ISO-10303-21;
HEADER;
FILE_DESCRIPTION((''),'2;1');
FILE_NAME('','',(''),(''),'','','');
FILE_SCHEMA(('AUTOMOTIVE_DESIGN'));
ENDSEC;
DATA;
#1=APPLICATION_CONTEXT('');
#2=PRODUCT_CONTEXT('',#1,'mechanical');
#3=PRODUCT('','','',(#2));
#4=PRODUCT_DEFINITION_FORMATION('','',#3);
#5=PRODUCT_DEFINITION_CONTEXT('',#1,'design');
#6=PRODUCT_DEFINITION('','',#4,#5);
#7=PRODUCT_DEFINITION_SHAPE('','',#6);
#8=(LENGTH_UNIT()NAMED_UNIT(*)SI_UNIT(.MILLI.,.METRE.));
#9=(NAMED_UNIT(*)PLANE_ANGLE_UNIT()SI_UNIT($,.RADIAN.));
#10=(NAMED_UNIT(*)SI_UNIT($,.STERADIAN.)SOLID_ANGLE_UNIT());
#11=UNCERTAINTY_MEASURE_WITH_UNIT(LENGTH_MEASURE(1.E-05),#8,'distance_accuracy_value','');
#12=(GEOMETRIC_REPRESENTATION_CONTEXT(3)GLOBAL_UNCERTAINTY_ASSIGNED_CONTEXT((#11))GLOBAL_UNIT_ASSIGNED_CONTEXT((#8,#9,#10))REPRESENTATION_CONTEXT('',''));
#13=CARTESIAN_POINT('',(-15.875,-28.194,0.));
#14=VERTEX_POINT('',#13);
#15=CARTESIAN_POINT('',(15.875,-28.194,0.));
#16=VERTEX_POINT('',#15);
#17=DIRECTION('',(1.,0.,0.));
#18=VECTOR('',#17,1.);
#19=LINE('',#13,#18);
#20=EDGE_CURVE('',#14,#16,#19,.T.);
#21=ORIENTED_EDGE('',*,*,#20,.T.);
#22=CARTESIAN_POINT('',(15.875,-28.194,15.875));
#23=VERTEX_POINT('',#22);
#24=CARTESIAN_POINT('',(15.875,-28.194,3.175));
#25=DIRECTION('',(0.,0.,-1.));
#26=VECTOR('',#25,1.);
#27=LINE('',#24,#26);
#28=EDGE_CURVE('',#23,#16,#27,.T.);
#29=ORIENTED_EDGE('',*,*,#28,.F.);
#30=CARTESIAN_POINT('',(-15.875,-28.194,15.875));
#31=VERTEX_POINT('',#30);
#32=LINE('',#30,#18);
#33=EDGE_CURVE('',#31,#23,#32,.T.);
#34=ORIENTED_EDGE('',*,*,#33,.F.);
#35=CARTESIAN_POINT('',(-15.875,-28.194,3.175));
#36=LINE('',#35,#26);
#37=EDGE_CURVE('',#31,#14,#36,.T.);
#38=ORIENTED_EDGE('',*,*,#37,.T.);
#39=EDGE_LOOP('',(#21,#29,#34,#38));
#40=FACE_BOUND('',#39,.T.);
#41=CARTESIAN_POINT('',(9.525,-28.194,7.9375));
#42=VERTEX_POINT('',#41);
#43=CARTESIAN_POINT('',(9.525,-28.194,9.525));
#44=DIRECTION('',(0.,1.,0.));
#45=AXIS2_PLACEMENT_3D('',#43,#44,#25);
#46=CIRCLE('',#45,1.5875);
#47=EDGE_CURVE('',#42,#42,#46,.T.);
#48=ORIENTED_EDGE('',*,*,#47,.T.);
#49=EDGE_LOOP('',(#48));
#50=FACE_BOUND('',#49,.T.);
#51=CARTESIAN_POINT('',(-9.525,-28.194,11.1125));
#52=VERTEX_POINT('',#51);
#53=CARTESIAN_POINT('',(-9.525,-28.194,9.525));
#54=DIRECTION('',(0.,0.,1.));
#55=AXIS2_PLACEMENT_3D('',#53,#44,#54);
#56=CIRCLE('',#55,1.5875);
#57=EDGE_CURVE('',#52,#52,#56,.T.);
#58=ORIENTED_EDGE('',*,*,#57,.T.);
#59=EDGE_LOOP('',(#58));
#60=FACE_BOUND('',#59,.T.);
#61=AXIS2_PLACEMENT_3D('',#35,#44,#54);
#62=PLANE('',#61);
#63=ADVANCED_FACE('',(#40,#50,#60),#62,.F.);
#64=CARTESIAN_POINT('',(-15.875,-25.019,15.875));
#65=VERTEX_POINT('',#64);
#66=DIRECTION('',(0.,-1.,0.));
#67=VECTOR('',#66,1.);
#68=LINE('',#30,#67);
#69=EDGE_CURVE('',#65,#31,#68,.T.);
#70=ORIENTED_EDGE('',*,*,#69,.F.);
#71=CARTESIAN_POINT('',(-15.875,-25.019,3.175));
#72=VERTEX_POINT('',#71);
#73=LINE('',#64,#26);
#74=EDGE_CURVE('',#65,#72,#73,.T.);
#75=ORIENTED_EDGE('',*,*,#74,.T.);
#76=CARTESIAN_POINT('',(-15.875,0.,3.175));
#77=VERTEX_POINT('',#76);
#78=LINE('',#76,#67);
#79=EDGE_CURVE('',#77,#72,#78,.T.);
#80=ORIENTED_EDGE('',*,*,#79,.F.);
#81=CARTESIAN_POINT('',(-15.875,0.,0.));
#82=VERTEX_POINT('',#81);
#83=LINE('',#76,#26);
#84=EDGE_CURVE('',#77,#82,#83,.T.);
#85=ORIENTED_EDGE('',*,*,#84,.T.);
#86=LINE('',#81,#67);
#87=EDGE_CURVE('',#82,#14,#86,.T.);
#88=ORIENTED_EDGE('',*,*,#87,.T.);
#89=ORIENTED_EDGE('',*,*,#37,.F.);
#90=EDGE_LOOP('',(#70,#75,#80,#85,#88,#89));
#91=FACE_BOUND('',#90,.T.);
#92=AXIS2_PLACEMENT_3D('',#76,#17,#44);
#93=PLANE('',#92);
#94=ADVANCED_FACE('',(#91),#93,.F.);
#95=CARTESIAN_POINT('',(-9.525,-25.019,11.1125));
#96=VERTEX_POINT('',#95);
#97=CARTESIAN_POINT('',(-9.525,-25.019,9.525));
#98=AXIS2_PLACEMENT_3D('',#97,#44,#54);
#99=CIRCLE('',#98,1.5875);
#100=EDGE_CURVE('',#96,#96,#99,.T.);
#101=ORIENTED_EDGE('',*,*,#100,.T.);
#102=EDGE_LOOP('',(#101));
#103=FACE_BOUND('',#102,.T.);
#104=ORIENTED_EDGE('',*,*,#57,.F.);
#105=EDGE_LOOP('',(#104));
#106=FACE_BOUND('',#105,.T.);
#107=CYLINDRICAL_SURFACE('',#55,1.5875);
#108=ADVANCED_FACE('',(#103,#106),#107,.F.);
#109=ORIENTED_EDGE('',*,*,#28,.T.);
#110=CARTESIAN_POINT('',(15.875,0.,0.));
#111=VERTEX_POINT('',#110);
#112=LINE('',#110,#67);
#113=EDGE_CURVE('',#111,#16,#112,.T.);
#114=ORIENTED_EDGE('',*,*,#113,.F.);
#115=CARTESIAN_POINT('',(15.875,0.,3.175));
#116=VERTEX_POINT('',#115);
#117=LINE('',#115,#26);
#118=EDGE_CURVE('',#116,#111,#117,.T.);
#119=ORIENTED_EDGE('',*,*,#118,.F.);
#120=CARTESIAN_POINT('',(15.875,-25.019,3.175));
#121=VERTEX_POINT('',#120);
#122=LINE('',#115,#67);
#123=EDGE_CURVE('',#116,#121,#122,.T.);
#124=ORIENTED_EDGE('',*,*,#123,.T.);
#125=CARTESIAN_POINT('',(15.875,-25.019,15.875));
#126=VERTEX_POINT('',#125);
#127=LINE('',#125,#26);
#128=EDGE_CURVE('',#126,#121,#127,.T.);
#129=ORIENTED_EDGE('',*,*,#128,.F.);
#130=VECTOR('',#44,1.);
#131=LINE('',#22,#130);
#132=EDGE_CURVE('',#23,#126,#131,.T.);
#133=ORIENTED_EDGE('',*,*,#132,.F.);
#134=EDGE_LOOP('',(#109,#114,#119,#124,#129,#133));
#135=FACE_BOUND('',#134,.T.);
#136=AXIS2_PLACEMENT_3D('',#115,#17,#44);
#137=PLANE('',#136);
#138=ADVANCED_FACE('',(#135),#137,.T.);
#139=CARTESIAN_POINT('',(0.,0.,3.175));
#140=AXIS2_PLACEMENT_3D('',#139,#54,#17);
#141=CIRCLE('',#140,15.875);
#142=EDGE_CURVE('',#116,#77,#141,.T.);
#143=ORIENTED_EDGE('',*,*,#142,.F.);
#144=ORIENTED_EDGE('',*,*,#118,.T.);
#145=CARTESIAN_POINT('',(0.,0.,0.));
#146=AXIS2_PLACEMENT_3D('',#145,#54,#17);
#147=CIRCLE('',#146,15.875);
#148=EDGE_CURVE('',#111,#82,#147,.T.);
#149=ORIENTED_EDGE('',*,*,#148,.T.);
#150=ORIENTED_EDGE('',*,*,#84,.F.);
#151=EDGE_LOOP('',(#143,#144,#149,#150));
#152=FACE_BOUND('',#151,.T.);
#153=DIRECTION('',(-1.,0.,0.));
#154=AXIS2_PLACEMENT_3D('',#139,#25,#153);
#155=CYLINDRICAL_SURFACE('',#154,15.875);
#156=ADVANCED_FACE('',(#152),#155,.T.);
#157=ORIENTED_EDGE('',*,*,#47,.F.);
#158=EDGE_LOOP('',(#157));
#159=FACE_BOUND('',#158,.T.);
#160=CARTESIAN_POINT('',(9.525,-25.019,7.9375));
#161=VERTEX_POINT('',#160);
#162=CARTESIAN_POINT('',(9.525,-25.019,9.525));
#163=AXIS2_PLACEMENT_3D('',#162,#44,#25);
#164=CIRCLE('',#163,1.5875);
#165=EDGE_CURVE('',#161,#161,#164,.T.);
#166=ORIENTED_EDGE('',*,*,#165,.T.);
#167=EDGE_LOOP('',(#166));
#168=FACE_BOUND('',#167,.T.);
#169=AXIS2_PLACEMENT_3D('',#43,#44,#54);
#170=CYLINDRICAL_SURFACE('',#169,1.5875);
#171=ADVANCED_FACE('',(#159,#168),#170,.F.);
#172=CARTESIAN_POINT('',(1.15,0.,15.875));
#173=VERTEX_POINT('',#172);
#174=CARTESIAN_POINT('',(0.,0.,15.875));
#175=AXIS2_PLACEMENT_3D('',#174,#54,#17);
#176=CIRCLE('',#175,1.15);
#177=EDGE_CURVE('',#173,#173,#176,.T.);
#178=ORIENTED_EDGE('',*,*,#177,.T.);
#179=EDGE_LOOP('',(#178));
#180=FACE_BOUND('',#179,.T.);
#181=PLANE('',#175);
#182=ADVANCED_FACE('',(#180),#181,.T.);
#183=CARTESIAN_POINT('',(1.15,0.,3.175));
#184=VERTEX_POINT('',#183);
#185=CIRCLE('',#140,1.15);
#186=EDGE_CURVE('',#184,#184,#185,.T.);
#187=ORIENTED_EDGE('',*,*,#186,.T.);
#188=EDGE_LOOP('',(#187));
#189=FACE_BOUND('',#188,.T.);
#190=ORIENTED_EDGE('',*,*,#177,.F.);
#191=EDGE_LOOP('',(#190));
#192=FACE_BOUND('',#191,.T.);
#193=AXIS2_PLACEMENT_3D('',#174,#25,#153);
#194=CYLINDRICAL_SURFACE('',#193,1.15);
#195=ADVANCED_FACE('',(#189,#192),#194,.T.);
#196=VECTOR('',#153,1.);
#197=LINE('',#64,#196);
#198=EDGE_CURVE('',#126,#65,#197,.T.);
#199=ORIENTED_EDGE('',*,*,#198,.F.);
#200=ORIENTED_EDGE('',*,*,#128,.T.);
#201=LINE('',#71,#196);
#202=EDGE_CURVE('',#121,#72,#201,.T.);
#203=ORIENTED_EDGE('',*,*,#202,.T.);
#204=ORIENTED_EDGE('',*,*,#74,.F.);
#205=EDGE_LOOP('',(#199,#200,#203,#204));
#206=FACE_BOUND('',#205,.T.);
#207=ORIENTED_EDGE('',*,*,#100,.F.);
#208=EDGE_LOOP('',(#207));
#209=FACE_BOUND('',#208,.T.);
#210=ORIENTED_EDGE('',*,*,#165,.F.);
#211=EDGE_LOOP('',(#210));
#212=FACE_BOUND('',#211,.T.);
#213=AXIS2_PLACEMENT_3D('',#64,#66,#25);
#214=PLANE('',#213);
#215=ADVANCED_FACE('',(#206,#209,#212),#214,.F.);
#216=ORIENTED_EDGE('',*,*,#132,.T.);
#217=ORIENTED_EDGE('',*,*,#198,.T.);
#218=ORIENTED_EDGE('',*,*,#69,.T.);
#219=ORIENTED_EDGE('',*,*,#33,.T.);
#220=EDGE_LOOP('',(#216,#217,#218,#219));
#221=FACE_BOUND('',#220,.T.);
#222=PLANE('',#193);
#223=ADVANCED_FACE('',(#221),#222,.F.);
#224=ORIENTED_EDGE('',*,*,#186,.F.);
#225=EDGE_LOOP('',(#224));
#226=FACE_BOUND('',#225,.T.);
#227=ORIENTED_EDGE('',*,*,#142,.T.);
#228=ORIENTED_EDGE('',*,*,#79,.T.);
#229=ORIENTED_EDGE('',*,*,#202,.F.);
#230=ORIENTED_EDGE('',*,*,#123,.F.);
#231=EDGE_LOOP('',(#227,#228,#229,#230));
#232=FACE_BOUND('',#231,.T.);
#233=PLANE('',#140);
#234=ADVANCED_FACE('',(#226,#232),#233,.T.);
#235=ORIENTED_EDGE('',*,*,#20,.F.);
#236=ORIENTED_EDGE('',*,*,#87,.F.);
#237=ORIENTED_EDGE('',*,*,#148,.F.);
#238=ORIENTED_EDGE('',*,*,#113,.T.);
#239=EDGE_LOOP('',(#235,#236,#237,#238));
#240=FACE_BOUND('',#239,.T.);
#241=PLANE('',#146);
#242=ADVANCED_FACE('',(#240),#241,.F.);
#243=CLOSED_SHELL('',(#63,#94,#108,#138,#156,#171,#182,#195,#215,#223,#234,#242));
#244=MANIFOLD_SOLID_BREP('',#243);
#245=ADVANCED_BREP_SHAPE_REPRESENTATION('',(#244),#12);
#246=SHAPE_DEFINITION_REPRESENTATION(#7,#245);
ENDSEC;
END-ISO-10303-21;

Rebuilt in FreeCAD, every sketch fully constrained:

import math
import FreeCAD as App
import Part
import Sketcher
from FreeCAD import Vector
Q = App.Units.Quantity


def add_polygon(sketch, points):
    """Adds a closed chain of lines whose ends are joined by coincident constraints."""
    first, n = sketch.GeometryCount, len(points)
    for a, b in zip(points, points[1:] + points[:1]):
        sketch.addGeometry(Part.LineSegment(App.Vector(*a, 0), App.Vector(*b, 0)), False)
    for i in range(n):
        sketch.addConstraint(Sketcher.Constraint("Coincident", first + i, 2, first + (i + 1) % n, 1))

doc = App.newDocument("Part")
body = doc.addObject("PartDesign::Body", "Body")

sketch1 = body.newObject("Sketcher::SketchObject", "Sketch")
sketch1.AttachmentSupport = (doc.getObject("XY_Plane"), [""])
sketch1.MapMode = "FlatFace"
sketch1.addGeometry(Part.ArcOfCircle(Part.Circle(Vector(0, 0, 0), Vector(0, 0, 1), 16), math.radians(0), math.radians(180)), False)
sketch1.addGeometry(Part.LineSegment(Vector(-16, 0, 0), Vector(-16, -28, 0)), False)
sketch1.addGeometry(Part.LineSegment(Vector(-16, -28, 0), Vector(16, -28, 0)), False)
sketch1.addGeometry(Part.LineSegment(Vector(16, -28, 0), Vector(16, 0, 0)), False)
sketch1.addConstraint(Sketcher.Constraint("Tangent", 0, 2, 1, 1))
sketch1.addConstraint(Sketcher.Constraint("Coincident", 1, 2, 2, 1))
sketch1.addConstraint(Sketcher.Constraint("Coincident", 2, 2, 3, 1))
sketch1.addConstraint(Sketcher.Constraint("Tangent", 3, 2, 0, 1))
sketch1.addConstraint(Sketcher.Constraint("Vertical", 1))
sketch1.addConstraint(Sketcher.Constraint("Horizontal", 2))
sketch1.addConstraint(Sketcher.Constraint("Vertical", 3))
sketch1.addConstraint(Sketcher.Constraint("Coincident", 0, 3, -1, 1))
sketch1.addConstraint(Sketcher.Constraint("Radius", 0, Q("0.625 in")))
sketch1.addConstraint(Sketcher.Constraint("DistanceY", 1, 2, 1, 1, Q("1.11 in")))
pad1 = body.newObject("PartDesign::Pad", "Pad")
pad1.Profile = sketch1
pad1.Length = Q("0.125 in")

sketch2 = body.newObject("Sketcher::SketchObject", "Sketch001")
sketch2.AttachmentSupport = (doc.getObject("XY_Plane"), [""])
sketch2.MapMode = "FlatFace"
sketch2.AttachmentOffset = App.Placement(Vector(0, 0, 0.125 * 25.4), App.Rotation())
add_polygon(sketch2, [(-15.9, -25), (-15.9, -28.2), (15.9, -28.2), (15.9, -25)])
sketch2.addConstraint(Sketcher.Constraint("Vertical", 0))
sketch2.addConstraint(Sketcher.Constraint("Horizontal", 1))
sketch2.addConstraint(Sketcher.Constraint("Vertical", 2))
sketch2.addConstraint(Sketcher.Constraint("Horizontal", 3))
sketch2.addConstraint(Sketcher.Constraint("DistanceX", 1, 1, 1, 2, Q("1.25 in")))
sketch2.addConstraint(Sketcher.Constraint("DistanceY", 0, 2, 0, 1, Q("0.125 in")))
sketch2.addConstraint(Sketcher.Constraint("DistanceY", 0, 2, -1, 1, Q("1.11 in")))
sketch2.addConstraint(Sketcher.Constraint("DistanceX", 0, 2, -1, 1, Q("0.625 in")))
pad2 = body.newObject("PartDesign::Pad", "Pad001")
pad2.Profile = sketch2
pad2.Length = Q("0.5 in")

sketch3 = body.newObject("Sketcher::SketchObject", "Sketch002")
sketch3.AttachmentSupport = (doc.getObject("XZ_Plane"), [""])
sketch3.MapMode = "FlatFace"
sketch3.AttachmentOffset = App.Placement(Vector(0, 0, 0.985 * 25.4), App.Rotation())
sketch3.addGeometry(Part.Circle(Vector(-9.5, 9.5, 0), Vector(0, 0, 1), 1.6), False)
sketch3.addGeometry(Part.Circle(Vector(9.5, 9.5, 0), Vector(0, 0, 1), 1.6), False)
sketch3.addConstraint(Sketcher.Constraint("Equal", 0, 1))
sketch3.addConstraint(Sketcher.Constraint("Symmetric", 0, 3, 1, 3, -2))
sketch3.addConstraint(Sketcher.Constraint("Diameter", 0, Q("0.125 in")))
sketch3.addConstraint(Sketcher.Constraint("DistanceX", 0, 3, 1, 3, Q("0.75 in")))
sketch3.addConstraint(Sketcher.Constraint("DistanceY", -1, 1, 0, 3, Q("0.375 in")))
pocket1 = body.newObject("PartDesign::Pocket", "Pocket")
pocket1.Profile = sketch3
pocket1.Type = "ThroughAll"
pocket1.Reversed = True

sketch4 = body.newObject("Sketcher::SketchObject", "Sketch003")
sketch4.AttachmentSupport = (doc.getObject("XY_Plane"), [""])
sketch4.MapMode = "FlatFace"
sketch4.AttachmentOffset = App.Placement(Vector(0, 0, 0.125 * 25.4), App.Rotation())
sketch4.addGeometry(Part.Circle(Vector(0, 0, 0), Vector(0, 0, 1), 1.1), False)
sketch4.addConstraint(Sketcher.Constraint("Coincident", 0, 3, -1, 1))
sketch4.addConstraint(Sketcher.Constraint("Diameter", 0, Q("2.3 mm")))
pad3 = body.newObject("PartDesign::Pad", "Pad002")
pad3.Profile = sketch4
pad3.Length = Q("0.5 in")

doc.recompute()
